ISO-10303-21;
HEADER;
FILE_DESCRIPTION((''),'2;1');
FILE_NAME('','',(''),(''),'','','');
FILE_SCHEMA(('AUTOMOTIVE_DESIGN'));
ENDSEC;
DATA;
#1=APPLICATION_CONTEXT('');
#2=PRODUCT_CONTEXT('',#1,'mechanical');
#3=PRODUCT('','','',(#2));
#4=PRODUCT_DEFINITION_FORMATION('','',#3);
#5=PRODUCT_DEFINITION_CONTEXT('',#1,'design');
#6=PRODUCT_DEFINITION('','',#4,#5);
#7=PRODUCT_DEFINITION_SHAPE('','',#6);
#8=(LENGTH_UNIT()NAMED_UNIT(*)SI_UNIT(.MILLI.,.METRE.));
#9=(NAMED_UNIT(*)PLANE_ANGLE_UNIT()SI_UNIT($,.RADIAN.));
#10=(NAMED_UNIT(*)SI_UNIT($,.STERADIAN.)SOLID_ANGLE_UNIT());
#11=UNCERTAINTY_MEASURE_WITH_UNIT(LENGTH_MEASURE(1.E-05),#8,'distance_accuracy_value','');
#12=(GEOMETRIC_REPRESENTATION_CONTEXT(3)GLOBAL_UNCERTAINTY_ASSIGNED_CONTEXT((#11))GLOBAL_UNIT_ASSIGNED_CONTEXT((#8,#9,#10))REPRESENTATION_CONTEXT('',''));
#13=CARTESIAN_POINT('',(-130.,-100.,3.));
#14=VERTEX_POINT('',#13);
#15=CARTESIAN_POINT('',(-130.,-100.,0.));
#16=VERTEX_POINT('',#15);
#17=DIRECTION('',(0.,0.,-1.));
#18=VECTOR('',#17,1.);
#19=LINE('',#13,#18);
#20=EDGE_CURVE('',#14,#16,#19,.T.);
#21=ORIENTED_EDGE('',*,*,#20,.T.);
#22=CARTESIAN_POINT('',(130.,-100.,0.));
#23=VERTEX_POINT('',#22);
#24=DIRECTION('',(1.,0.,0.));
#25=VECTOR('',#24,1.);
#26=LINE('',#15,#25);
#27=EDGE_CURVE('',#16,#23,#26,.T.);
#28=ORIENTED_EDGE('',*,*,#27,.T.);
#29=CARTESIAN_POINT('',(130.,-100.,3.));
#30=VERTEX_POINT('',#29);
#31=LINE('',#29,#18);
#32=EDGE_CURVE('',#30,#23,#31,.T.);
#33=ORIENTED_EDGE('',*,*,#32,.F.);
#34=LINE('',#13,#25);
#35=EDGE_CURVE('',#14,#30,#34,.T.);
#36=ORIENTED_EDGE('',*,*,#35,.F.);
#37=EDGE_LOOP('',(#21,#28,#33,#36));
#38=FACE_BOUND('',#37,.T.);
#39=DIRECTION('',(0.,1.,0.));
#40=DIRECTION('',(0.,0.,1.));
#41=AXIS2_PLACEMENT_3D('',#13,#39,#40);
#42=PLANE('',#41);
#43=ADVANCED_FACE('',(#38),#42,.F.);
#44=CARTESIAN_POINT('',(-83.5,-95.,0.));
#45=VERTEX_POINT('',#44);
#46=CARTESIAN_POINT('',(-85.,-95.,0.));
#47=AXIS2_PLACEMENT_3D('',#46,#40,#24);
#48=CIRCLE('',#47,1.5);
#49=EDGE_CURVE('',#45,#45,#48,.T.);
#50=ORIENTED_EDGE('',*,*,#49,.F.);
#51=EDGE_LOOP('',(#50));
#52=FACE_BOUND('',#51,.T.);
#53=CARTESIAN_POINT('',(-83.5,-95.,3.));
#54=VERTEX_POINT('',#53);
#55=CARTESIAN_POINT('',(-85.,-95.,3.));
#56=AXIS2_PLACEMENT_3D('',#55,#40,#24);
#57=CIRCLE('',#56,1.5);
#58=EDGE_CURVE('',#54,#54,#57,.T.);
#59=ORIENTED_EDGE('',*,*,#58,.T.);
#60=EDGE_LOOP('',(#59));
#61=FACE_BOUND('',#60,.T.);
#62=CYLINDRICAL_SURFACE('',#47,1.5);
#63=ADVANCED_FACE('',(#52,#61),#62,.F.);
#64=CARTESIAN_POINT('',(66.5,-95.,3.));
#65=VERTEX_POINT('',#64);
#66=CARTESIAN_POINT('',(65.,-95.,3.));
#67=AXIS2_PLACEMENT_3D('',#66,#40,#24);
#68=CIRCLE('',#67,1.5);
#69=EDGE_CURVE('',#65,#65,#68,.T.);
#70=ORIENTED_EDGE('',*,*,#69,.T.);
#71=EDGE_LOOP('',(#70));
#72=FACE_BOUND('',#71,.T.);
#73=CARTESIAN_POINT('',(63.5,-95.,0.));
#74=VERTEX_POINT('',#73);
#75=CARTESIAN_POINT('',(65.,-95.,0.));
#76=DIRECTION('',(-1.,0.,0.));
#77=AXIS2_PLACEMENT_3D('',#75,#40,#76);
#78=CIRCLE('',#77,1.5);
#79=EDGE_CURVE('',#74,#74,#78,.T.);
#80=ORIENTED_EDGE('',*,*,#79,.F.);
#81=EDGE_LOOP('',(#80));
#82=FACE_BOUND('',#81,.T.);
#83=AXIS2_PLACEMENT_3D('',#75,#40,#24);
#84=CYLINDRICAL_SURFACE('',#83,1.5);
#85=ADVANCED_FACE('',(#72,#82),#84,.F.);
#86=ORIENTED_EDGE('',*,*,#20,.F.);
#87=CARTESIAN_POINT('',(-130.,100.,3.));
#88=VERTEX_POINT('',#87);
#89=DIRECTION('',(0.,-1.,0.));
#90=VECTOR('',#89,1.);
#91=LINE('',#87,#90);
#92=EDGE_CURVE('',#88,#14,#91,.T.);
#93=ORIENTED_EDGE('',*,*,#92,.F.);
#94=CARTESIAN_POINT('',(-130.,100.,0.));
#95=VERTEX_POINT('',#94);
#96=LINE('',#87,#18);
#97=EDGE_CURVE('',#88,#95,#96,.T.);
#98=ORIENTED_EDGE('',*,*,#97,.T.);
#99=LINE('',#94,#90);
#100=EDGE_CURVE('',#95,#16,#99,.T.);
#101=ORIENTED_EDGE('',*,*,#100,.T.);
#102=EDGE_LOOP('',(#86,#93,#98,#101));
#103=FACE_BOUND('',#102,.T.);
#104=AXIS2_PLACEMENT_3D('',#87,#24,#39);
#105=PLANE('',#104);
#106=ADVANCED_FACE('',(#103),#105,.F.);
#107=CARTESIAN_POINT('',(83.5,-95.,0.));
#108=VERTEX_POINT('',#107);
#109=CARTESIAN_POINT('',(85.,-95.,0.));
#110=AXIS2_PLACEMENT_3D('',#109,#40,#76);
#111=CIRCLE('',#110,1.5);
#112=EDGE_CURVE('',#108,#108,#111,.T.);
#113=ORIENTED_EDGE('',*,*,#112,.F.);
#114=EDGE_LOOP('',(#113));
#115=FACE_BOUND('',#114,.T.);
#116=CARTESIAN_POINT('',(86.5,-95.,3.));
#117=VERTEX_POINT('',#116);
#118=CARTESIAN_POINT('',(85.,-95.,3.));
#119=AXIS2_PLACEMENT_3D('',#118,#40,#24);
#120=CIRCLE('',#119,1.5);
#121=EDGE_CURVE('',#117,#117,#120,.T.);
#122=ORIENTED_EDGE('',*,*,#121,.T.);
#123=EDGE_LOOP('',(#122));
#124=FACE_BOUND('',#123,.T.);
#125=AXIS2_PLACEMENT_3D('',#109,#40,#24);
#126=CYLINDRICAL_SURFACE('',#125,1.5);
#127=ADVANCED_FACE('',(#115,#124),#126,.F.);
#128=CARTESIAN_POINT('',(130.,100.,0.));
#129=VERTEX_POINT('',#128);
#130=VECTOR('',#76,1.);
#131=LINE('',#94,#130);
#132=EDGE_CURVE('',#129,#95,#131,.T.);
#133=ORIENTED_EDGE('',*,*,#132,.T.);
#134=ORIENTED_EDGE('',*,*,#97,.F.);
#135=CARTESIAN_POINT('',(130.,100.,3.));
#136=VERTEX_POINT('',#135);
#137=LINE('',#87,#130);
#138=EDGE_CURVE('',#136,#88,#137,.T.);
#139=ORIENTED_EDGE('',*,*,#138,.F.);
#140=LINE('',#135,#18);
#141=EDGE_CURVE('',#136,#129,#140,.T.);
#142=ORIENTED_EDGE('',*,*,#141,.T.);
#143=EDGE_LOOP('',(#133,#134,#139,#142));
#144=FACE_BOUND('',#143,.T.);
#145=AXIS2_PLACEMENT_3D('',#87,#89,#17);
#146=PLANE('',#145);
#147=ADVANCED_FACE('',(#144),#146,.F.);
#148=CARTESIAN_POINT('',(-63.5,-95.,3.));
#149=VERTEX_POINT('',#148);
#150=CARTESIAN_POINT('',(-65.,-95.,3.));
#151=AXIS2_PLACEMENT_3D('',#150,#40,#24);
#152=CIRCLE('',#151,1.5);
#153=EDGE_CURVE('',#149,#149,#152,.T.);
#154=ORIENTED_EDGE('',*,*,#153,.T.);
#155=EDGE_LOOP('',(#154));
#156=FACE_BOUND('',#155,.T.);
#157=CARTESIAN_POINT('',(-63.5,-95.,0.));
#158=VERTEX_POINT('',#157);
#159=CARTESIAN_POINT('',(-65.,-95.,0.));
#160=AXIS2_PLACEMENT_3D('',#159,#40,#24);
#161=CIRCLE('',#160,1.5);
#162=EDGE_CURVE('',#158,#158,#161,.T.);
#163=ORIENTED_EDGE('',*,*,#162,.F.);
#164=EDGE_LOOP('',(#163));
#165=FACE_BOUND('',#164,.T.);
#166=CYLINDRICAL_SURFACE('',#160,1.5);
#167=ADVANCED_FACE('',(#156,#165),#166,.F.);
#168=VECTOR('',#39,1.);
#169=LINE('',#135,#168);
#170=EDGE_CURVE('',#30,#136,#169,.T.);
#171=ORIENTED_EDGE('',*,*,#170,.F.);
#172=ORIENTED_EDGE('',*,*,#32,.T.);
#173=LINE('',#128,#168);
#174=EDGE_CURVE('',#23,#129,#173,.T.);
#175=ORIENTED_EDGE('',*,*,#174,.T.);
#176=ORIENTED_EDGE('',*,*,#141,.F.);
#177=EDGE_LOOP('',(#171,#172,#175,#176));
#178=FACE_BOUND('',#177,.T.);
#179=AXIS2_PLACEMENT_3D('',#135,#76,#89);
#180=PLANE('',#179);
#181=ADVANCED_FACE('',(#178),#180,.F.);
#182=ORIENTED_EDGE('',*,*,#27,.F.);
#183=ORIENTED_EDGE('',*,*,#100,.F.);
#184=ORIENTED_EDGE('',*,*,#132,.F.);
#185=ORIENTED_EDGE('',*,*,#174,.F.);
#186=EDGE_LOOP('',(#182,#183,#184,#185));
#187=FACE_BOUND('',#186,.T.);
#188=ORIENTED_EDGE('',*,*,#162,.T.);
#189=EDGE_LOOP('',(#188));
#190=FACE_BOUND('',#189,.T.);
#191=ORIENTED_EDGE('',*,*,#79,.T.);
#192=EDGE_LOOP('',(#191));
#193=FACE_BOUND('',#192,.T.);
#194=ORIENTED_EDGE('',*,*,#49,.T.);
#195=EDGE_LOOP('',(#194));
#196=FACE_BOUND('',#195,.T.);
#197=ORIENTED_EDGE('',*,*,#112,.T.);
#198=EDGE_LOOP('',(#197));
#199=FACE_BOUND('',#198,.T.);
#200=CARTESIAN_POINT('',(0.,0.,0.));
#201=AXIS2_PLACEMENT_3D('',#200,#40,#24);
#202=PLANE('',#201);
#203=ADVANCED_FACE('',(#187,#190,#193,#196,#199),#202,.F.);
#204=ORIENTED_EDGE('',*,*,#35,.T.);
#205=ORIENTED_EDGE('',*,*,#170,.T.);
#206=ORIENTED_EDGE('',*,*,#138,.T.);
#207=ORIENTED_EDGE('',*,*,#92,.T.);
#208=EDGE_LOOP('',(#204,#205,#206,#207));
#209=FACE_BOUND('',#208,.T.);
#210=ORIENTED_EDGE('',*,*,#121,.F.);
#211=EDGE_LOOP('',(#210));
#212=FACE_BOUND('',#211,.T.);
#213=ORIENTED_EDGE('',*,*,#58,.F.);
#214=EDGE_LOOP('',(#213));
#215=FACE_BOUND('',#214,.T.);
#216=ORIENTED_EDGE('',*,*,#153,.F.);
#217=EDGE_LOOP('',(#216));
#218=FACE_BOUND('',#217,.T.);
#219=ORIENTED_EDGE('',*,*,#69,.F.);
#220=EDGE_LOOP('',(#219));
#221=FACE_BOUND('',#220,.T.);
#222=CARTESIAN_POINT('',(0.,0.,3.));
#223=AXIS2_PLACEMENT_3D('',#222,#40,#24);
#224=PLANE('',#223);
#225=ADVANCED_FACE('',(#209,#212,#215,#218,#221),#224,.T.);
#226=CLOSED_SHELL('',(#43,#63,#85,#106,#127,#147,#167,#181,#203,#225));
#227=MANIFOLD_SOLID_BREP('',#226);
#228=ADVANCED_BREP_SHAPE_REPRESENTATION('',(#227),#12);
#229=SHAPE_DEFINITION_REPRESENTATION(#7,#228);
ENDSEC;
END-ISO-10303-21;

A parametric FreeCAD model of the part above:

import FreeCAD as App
import Part
import Sketcher
Q = App.Units.Quantity

doc = App.newDocument("Part")
body = doc.addObject("PartDesign::Body", "Body")

sketch1 = doc.addObject("Sketcher::SketchObject", "Sketch")
body.addObject(sketch1)
sketch1.AttachmentSupport = (doc.XY_Plane, [""])
sketch1.MapMode = "FlatFace"
sketch1.addGeometry([
    Part.LineSegment(App.Vector(-130, 100, 0), App.Vector(-130, -100, 0)),
    Part.LineSegment(App.Vector(-130, -100, 0), App.Vector(130, -100, 0)),
    Part.LineSegment(App.Vector(130, -100, 0), App.Vector(130, 100, 0)),
    Part.LineSegment(App.Vector(130, 100, 0), App.Vector(-130, 100, 0)),
], False)
sketch1.addConstraint([
    Sketcher.Constraint("Coincident", 0, 2, 1, 1),
    Sketcher.Constraint("Coincident", 1, 2, 2, 1),
    Sketcher.Constraint("Coincident", 2, 2, 3, 1),
    Sketcher.Constraint("Coincident", 3, 2, 0, 1),
    Sketcher.Constraint("Vertical", 0),
    Sketcher.Constraint("Horizontal", 1),
    Sketcher.Constraint("Vertical", 2),
    Sketcher.Constraint("Horizontal", 3),
    Sketcher.Constraint("Symmetric", 0, 2, 2, 2, -1, 1),
    Sketcher.Constraint("DistanceX", 1, 1, 1, 2, Q("260 mm")),
    Sketcher.Constraint("DistanceY", 0, 2, 0, 1, Q("200 mm")),
])
pad1 = doc.addObject("PartDesign::Pad", "Pad")
body.addObject(pad1)
pad1.Profile = sketch1
pad1.Length = 3

sketch2 = doc.addObject("Sketcher::SketchObject", "Sketch001")
body.addObject(sketch2)
sketch2.AttachmentSupport = (doc.XY_Plane, [""])
sketch2.MapMode = "FlatFace"
sketch2.AttachmentOffset = App.Placement(App.Vector(0, 0, 3), App.Rotation())
sketch2.addGeometry([
    Part.Circle(App.Vector(-65, -95, 0), App.Vector(0, 0, 1), 1.5),
    Part.Circle(App.Vector(-85, -95, 0), App.Vector(0, 0, 1), 1.5),
    Part.Circle(App.Vector(85, -95, 0), App.Vector(0, 0, 1), 1.5),
    Part.Circle(App.Vector(65, -95, 0), App.Vector(0, 0, 1), 1.5),
], False)
sketch2.addConstraint([
    Sketcher.Constraint("Equal", 0, 1),
    Sketcher.Constraint("Equal", 1, 2),
    Sketcher.Constraint("Equal", 2, 3),
    Sketcher.Constraint("Symmetric", 1, 3, 2, 3, -2),
    Sketcher.Constraint("Symmetric", 0, 3, 3, 3, -2),
    Sketcher.Constraint("Horizontal", 0, 3, 1, 3),
    Sketcher.Constraint("Diameter", 0, Q("3 mm")),
    Sketcher.Constraint("DistanceX", 0, 3, -1, 1, Q("65 mm")),
    Sketcher.Constraint("DistanceY", 0, 3, -1, 1, Q("95 mm")),
    Sketcher.Constraint("DistanceX", 1, 3, -1, 1, Q("85 mm")),
])
pocket1 = doc.addObject("PartDesign::Pocket", "Pocket")
body.addObject(pocket1)
pocket1.Profile = sketch2
pocket1.Type = "ThroughAll"
pocket1.Midplane = True

doc.recompute()
